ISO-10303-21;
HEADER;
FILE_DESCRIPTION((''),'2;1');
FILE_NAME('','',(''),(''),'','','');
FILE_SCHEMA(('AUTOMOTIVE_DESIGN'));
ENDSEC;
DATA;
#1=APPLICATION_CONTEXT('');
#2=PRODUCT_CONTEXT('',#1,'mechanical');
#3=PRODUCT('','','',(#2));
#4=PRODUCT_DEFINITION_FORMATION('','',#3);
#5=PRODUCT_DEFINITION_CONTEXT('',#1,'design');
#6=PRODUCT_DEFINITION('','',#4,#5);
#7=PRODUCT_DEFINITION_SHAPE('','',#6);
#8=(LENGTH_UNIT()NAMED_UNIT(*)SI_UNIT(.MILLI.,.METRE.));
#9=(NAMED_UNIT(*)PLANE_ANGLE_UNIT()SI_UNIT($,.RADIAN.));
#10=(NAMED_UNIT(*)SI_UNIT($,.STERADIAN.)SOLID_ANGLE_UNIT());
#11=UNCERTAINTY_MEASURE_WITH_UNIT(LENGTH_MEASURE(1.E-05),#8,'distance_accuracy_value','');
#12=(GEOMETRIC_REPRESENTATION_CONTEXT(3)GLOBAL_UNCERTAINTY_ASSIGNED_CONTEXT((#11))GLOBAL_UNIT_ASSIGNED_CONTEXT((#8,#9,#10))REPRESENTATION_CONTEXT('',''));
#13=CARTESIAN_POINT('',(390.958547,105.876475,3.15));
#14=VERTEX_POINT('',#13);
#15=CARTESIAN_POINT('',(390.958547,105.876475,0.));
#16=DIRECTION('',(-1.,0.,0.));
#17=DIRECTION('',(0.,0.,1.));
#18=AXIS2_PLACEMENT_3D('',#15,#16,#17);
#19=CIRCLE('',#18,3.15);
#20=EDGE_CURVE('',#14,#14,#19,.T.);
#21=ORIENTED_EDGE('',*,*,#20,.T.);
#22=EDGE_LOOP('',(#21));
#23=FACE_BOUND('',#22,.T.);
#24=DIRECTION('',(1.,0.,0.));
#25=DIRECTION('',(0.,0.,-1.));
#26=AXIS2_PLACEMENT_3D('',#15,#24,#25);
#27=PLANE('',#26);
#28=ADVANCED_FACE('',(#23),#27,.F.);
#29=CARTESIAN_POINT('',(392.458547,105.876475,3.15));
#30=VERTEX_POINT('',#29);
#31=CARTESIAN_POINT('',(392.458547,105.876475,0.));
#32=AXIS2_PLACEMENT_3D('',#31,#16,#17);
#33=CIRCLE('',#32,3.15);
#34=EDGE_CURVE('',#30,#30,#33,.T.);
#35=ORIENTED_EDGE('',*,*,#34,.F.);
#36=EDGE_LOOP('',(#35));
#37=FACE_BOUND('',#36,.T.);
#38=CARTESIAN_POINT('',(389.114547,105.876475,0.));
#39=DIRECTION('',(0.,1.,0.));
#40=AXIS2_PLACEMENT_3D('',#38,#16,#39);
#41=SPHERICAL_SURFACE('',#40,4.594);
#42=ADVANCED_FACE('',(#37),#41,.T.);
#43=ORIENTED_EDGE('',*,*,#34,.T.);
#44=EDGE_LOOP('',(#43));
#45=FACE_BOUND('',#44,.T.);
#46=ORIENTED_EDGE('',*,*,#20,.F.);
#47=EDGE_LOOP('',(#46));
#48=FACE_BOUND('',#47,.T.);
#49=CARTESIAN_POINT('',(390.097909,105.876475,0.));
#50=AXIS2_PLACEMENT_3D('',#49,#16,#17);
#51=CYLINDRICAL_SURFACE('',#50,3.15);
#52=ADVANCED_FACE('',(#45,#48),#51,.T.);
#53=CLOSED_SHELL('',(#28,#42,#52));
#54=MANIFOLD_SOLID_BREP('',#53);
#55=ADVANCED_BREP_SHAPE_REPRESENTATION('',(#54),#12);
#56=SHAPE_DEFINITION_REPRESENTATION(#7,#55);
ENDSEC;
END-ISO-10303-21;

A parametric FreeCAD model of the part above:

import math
import FreeCAD as App
import Part
import Sketcher

V = App.Vector

doc = App.newDocument("Part")
body = doc.addObject("PartDesign::Body", "Body")

# Sketch on XY plane
sketch1 = body.newObject("Sketcher::SketchObject", "Sketch")
sketch1.AttachmentSupport = (doc.getObject("XY_Plane"), [""])
sketch1.MapMode = "FlatFace"
sketch1.addGeometry([
    Part.LineSegment(V(391, 109, 0), V(391, 105.9, 0)),
    Part.LineSegment(V(391, 105.9, 0), V(393.7, 105.9, 0)),
    Part.ArcOfCircle(Part.Circle(V(389.1, 105.9, 0), V(0, 0, 1), 4.6), math.radians(0), math.radians(43)),
    Part.LineSegment(V(392.5, 109, 0), V(391, 109, 0)),
], False)
sketch1.addGeometry(Part.LineSegment(V(389.1, 105.9, 0), V(393.7, 105.9, 0)), True)  # axis
sketch1.addConstraint([
    Sketcher.Constraint("Coincident", 0, 2, 1, 1),
    Sketcher.Constraint("Coincident", 1, 2, 2, 1),
    Sketcher.Constraint("Coincident", 2, 2, 3, 1),
    Sketcher.Constraint("Coincident", 3, 2, 0, 1),
    Sketcher.Constraint("Vertical", 0),
    Sketcher.Constraint("Horizontal", 1),
    Sketcher.Constraint("Horizontal", 3),
    Sketcher.Constraint("Horizontal", 4),
    Sketcher.Constraint("Coincident", 4, 1, 2, 3),
    Sketcher.Constraint("Coincident", 4, 2, 1, 2),
    Sketcher.Constraint("DistanceX", 3, 2, 3, 1, 1.5),
    Sketcher.Constraint("Radius", 2, 4.594),
    Sketcher.Constraint("DistanceX", 1, 1, 1, 2, 2.75),
    Sketcher.Constraint("DistanceX", -1, 1, 2, 3, 389.114547),
    Sketcher.Constraint("DistanceY", -1, 1, 2, 3, 105.876475),
])
revolution = body.newObject("PartDesign::Revolution", "Revolution")
revolution.Profile = sketch1
revolution.ReferenceAxis = (sketch1, ["Axis0"])
revolution.Angle = 360

doc.recompute()
